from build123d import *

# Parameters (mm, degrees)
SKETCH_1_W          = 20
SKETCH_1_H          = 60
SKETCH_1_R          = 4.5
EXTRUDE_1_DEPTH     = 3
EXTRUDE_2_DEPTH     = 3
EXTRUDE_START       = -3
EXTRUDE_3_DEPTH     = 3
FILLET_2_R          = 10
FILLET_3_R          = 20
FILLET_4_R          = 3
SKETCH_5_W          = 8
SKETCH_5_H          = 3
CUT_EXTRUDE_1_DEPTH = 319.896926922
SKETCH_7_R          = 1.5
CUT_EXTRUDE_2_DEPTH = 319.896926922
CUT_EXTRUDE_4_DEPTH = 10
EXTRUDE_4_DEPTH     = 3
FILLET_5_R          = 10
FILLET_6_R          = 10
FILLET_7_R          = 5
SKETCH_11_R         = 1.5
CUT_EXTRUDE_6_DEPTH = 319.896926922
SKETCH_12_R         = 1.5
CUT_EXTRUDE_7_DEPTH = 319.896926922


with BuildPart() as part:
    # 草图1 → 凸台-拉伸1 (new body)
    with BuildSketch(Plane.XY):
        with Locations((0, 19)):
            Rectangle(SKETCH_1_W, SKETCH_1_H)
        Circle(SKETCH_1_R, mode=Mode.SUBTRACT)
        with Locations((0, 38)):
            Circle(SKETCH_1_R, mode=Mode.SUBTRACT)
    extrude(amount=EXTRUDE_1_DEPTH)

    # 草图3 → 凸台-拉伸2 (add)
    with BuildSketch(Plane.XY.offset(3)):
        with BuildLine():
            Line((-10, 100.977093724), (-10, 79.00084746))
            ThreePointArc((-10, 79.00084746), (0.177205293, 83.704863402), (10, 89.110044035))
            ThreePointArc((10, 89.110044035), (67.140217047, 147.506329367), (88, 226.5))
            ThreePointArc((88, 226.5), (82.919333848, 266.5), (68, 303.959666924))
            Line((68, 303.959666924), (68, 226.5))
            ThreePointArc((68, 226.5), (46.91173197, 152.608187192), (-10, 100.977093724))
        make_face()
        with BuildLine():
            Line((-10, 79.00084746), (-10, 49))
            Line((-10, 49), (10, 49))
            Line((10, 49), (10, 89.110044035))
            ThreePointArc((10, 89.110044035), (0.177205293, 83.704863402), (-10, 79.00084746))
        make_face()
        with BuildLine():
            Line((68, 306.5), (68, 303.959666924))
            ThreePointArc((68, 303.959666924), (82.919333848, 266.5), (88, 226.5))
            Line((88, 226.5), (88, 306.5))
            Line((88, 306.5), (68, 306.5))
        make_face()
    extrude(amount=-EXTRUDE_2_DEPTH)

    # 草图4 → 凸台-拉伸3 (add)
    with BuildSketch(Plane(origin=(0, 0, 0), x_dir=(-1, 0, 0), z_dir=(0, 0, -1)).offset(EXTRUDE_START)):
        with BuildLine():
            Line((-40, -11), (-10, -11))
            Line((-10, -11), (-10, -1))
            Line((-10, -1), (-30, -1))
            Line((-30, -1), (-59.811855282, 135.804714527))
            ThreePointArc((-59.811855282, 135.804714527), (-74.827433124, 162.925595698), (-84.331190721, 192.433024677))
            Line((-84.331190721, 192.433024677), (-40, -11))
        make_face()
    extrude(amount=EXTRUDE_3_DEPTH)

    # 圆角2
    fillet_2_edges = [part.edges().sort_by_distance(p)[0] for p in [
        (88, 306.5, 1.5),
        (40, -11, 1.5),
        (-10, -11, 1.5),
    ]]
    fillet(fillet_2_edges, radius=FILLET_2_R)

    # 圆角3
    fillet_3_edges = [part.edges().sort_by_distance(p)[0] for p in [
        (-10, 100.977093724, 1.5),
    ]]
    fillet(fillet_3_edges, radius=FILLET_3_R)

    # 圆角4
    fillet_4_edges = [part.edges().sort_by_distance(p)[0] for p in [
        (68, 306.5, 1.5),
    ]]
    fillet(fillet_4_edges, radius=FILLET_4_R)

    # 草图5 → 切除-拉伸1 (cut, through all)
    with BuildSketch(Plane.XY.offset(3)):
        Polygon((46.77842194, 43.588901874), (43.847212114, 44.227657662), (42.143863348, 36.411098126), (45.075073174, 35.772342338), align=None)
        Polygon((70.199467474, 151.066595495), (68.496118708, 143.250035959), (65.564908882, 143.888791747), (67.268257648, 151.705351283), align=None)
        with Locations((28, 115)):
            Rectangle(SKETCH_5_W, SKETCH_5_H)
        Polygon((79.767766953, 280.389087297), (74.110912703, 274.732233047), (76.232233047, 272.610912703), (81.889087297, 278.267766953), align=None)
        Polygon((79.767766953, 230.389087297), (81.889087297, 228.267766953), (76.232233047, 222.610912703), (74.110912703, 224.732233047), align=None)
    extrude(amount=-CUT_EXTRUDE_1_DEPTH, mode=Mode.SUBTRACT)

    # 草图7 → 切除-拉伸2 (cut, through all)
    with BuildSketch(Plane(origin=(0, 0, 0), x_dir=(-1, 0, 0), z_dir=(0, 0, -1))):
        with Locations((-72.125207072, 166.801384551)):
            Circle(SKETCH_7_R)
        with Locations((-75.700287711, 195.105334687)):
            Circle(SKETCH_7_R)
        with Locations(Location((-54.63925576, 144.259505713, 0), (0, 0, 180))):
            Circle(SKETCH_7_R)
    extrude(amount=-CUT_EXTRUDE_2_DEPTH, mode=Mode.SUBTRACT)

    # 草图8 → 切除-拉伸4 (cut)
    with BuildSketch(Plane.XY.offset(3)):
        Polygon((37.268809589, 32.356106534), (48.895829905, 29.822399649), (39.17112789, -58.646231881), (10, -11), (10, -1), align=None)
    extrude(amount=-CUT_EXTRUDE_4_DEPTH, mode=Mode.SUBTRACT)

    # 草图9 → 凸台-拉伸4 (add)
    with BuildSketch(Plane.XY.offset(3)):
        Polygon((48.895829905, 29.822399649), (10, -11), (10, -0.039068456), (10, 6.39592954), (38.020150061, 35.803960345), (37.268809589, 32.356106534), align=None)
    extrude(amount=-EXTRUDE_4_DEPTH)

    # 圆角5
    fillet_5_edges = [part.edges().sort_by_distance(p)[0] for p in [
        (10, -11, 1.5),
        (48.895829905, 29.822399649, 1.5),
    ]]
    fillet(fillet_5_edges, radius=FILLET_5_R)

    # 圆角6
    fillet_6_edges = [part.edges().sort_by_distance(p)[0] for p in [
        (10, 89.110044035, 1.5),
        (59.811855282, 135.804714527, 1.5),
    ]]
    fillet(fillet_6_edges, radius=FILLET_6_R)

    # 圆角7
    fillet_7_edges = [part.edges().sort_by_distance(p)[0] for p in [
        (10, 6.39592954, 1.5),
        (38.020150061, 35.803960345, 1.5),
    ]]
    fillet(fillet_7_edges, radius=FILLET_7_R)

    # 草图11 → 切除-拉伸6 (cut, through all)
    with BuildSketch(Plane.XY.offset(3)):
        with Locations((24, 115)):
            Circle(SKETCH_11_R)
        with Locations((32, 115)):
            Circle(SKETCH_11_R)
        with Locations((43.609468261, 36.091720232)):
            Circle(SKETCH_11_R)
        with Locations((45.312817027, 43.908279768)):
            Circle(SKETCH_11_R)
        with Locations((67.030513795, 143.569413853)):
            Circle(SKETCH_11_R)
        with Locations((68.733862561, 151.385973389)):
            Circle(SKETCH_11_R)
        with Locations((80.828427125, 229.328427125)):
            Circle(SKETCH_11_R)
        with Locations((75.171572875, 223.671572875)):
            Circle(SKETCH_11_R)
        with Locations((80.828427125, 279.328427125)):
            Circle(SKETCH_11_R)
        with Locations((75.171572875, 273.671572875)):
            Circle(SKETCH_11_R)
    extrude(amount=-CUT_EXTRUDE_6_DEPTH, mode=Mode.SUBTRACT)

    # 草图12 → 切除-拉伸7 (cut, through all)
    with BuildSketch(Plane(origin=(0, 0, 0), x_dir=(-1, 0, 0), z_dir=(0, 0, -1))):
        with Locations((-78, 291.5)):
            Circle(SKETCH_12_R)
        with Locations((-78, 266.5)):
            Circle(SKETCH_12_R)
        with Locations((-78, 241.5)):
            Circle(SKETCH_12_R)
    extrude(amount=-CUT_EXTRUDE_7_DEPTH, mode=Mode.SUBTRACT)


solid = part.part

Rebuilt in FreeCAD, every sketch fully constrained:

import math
import FreeCAD as App
import Part
import Sketcher
from FreeCAD import Vector
Q = App.Units.Quantity


def edges_at(feature, points):
    """Names of the edges that pass closest to the given points."""
    edges = feature.Shape.Edges
    near = lambda p: min(range(len(edges)), key=lambda i: edges[i].distToShape(Part.Vertex(*p))[0])
    return sorted({f"Edge{near(p) + 1}" for p in points})


def add_polygon(sketch, points):
    """Adds a closed chain of lines whose ends are joined by coincident constraints."""
    first, n = sketch.GeometryCount, len(points)
    for a, b in zip(points, points[1:] + points[:1]):
        sketch.addGeometry(Part.LineSegment(App.Vector(*a, 0), App.Vector(*b, 0)), False)
    for i in range(n):
        sketch.addConstraint(Sketcher.Constraint("Coincident", first + i, 2, first + (i + 1) % n, 1))

doc = App.newDocument("Part")
params = doc.addObject("Spreadsheet::Sheet", "Params")
for row, (alias, value) in enumerate([
    ("sketch1_diameter", "9 mm"),
    ("sketch1_width", "20 mm"),
    ("sketch1_height", "60 mm"),
    ("pad1_length", "3 mm"),
    ("sketch2_radius", "160 mm"),
    ("sketch2_radius2", "140 mm"),
    ("sketch2_height", "80 mm"),
    ("pad2_length", "3 mm"),
    ("sketch3_radius", "160 mm"),
    ("sketch3_width", "30 mm"),
    ("sketch3_width2", "20 mm"),
    ("sketch3_height", "10 mm"),
    ("pad3_length", "3 mm"),
    ("fillet_radius", "10 mm"),
    ("fillet2_radius", "20 mm"),
    ("fillet3_radius", "3 mm"),
    ("sketch4_width", "8 mm"),
    ("sketch4_height", "3 mm"),
    ("sketch4_length", "3 mm"),
    ("sketch4_length2", "8 mm"),
    ("sketch5_diameter", "3 mm"),
    ("sketch6_height", "10 mm"),
    ("pocket3_length", "10 mm"),
    ("pad4_length", "3 mm"),
    ("fillet4_radius", "10 mm"),
    ("fillet5_radius", "10 mm"),
    ("fillet6_radius", "5 mm"),
    ("sketch8_diameter", "3 mm"),
    ("sketch9_diameter", "3 mm"),
], start=1):
    params.set(f"A{row}", alias)
    params.set(f"B{row}", "=" + value)
    params.setAlias(f"B{row}", alias)

body = doc.addObject("PartDesign::Body", "Body")

# Sketch on XY plane
sketch1 = body.newObject("Sketcher::SketchObject", "Sketch")
sketch1.AttachmentSupport = (doc.getObject("XY_Plane"), [""])
sketch1.MapMode = "FlatFace"
add_polygon(sketch1, [(-10, 49), (-10, -11), (10, -11), (10, 49)])  # lines 0-3
sketch1.addGeometry(Part.Circle(Vector(0, 0, 0), Vector(0, 0, 1), 4.5), False)  # 4
sketch1.addGeometry(Part.Circle(Vector(0, 38, 0), Vector(0, 0, 1), 4.5), False)  # 5
sketch1.addConstraint([
    Sketcher.Constraint("Vertical", 0),
    Sketcher.Constraint("Horizontal", 1),
    Sketcher.Constraint("Vertical", 2),
    Sketcher.Constraint("Horizontal", 3),
    Sketcher.Constraint("Coincident", 4, 3, -1, 1),
    Sketcher.Constraint("Equal", 4, 5),
    Sketcher.Constraint("PointOnObject", 5, 3, -2),
    Sketcher.Constraint("Diameter", 4, Q("9 mm")),
    Sketcher.Constraint("DistanceX", 1, 1, 1, 2, Q("20 mm")),
    Sketcher.Constraint("DistanceY", 0, 2, 0, 1, Q("60 mm")),
    Sketcher.Constraint("DistanceY", -1, 1, 5, 3, Q("38 mm")),
    Sketcher.Constraint("DistanceX", 0, 2, -1, 1, Q("10 mm")),
    Sketcher.Constraint("DistanceY", 0, 2, -1, 1, Q("11 mm")),
])
sketch1.setExpression("Constraints[11]", "Params.sketch1_diameter")
sketch1.setExpression("Constraints[12]", "Params.sketch1_width")
sketch1.setExpression("Constraints[13]", "Params.sketch1_height")
pad1 = body.newObject("PartDesign::Pad", "Pad")
pad1.Profile = sketch1
pad1.setExpression("Length", "Params.pad1_length")

# Sketch on XY plane
sketch2 = body.newObject("Sketcher::SketchObject", "Sketch001")
sketch2.AttachmentSupport = (doc.getObject("XY_Plane"), [""])
sketch2.MapMode = "FlatFace"
sketch2.AttachmentOffset = App.Placement(Vector(0, 0, 3), App.Rotation())
sketch2.addGeometry([
    Part.LineSegment(Vector(-10, 100.977094, 0), Vector(-10, 49, 0)),  # 0
    Part.LineSegment(Vector(-10, 49, 0), Vector(10, 49, 0)),  # 1
    Part.LineSegment(Vector(10, 49, 0), Vector(10, 89.110044, 0)),  # 2
    Part.ArcOfCircle(Part.Circle(Vector(-72, 226.5, 0), Vector(0, 0, 1), 160), math.radians(-59.169503), math.radians(0)),  # 3
    Part.LineSegment(Vector(88, 226.5, 0), Vector(88, 306.5, 0)),  # 4
    Part.LineSegment(Vector(88, 306.5, 0), Vector(68, 306.5, 0)),  # 5
    Part.LineSegment(Vector(68, 306.5, 0), Vector(68, 226.5, 0)),  # 6
    Part.ArcOfCircle(Part.Circle(Vector(-72, 226.5, 0), Vector(0, 0, 1), 140), math.radians(-63.713679), math.radians(0)),  # 7
], False)
sketch2.addConstraint([
    Sketcher.Constraint("Coincident", 0, 2, 1, 1),
    Sketcher.Constraint("Coincident", 1, 2, 2, 1),
    Sketcher.Constraint("Coincident", 2, 2, 3, 1),
    Sketcher.Constraint("Tangent", 3, 2, 4, 1),
    Sketcher.Constraint("Coincident", 4, 2, 5, 1),
    Sketcher.Constraint("Coincident", 5, 2, 6, 1),
    Sketcher.Constraint("Tangent", 6, 2, 7, 2),
    Sketcher.Constraint("Coincident", 7, 1, 0, 1),
    Sketcher.Constraint("Vertical", 0),
    Sketcher.Constraint("Horizontal", 1),
    Sketcher.Constraint("Vertical", 2),
    Sketcher.Constraint("Vertical", 4),
    Sketcher.Constraint("Horizontal", 5),
    Sketcher.Constraint("Vertical", 6),
    Sketcher.Constraint("Coincident", 7, 3, 3, 3),
    Sketcher.Constraint("Equal", 1, 5),
    Sketcher.Constraint("Radius", 3, Q("160 mm")),
    Sketcher.Constraint("Radius", 7, Q("140 mm")),
    Sketcher.Constraint("DistanceY", 4, 1, 4, 2, Q("80 mm")),
    Sketcher.Constraint("DistanceX", 3, 3, -1, 1, Q("72 mm")),
    Sketcher.Constraint("DistanceX", 0, 2, -1, 1, Q("10 mm")),
    Sketcher.Constraint("DistanceY", -1, 1, 0, 2, Q("49 mm")),
    Sketcher.Constraint("DistanceY", -1, 1, 3, 3, Q("226.5 mm")),
])
sketch2.setExpression("Constraints[16]", "Params.sketch2_radius")
sketch2.setExpression("Constraints[17]", "Params.sketch2_radius2")
sketch2.setExpression("Constraints[18]", "Params.sketch2_height")
pad2 = body.newObject("PartDesign::Pad", "Pad001")
pad2.Profile = sketch2
pad2.setExpression("Length", "Params.pad2_length")
pad2.Reversed = True

# Sketch on XY plane
sketch3 = body.newObject("Sketcher::SketchObject", "Sketch002")
sketch3.AttachmentSupport = (doc.getObject("XY_Plane"), [""])
sketch3.MapMode = "FlatFace"
sketch3.AttachmentOffset = App.Placement(Vector(0, 0, 3), App.Rotation())
sketch3.addGeometry([
    Part.LineSegment(Vector(40, -11, 0), Vector(10, -11, 0)),  # 0
    Part.LineSegment(Vector(10, -11, 0), Vector(10, -1, 0)),  # 1
    Part.LineSegment(Vector(10, -1, 0), Vector(30, -1, 0)),  # 2
    Part.LineSegment(Vector(30, -1, 0), Vector(59.811855, 135.804715, 0)),  # 3
    Part.ArcOfCircle(Part.Circle(Vector(-72, 226.5, 0), Vector(0, 0, 1), 160), math.radians(-34.530547), math.radians(-12.293444)),  # 4
    Part.LineSegment(Vector(84.331191, 192.433025, 0), Vector(40, -11, 0)),  # 5
], False)
sketch3.addConstraint([
    Sketcher.Constraint("Coincident", 0, 2, 1, 1),
    Sketcher.Constraint("Coincident", 1, 2, 2, 1),
    Sketcher.Constraint("Coincident", 2, 2, 3, 1),
    Sketcher.Constraint("Coincident", 3, 2, 4, 1),
    Sketcher.Constraint("Tangent", 4, 2, 5, 1),
    Sketcher.Constraint("Coincident", 5, 2, 0, 1),
    Sketcher.Constraint("Horizontal", 0),
    Sketcher.Constraint("Vertical", 1),
    Sketcher.Constraint("Horizontal", 2),
    Sketcher.Constraint("Parallel", 3, 5),
    Sketcher.Constraint("Radius", 4, Q("160 mm")),
    Sketcher.Constraint("DistanceX", 0, 2, 0, 1, Q("30 mm")),
    Sketcher.Constraint("DistanceX", 2, 1, 2, 2, Q("20 mm")),
    Sketcher.Constraint("DistanceY", 1, 1, 1, 2, Q("10 mm")),
    Sketcher.Constraint("DistanceX", 4, 3, -1, 1, Q("72 mm")),
    Sketcher.Constraint("DistanceX", -1, 1, 0, 2, Q("10 mm")),
    Sketcher.Constraint("DistanceY", 0, 2, -1, 1, Q("11 mm")),
    Sketcher.Constraint("DistanceY", -1, 1, 4, 3, Q("226.5 mm")),
])
sketch3.setExpression("Constraints[10]", "Params.sketch3_radius")
sketch3.setExpression("Constraints[11]", "Params.sketch3_width")
sketch3.setExpression("Constraints[12]", "Params.sketch3_width2")
sketch3.setExpression("Constraints[13]", "Params.sketch3_height")
pad3 = body.newObject("PartDesign::Pad", "Pad002")
pad3.Profile = sketch3
pad3.setExpression("Length", "Params.pad3_length")
pad3.Reversed = True
doc.recompute()

fillet = body.newObject("PartDesign::Fillet", "Fillet")
fillet.Base = (pad3, edges_at(pad3, [(88, 306.5, 1.5), (40, -11, 1.5), (-10, -11, 1.5)]))
fillet.setExpression("Radius", "Params.fillet_radius")
doc.recompute()

fillet2 = body.newObject("PartDesign::Fillet", "Fillet001")
fillet2.Base = (fillet, edges_at(fillet, [(-10, 100.977, 1.5)]))
fillet2.setExpression("Radius", "Params.fillet2_radius")
doc.recompute()

fillet3 = body.newObject("PartDesign::Fillet", "Fillet002")
fillet3.Base = (fillet2, edges_at(fillet2, [(68, 306.5, 1.5)]))
fillet3.setExpression("Radius", "Params.fillet3_radius")

# Sketch on XY plane
sketch4 = body.newObject("Sketcher::SketchObject", "Sketch003")
sketch4.AttachmentSupport = (doc.getObject("XY_Plane"), [""])
sketch4.MapMode = "FlatFace"
sketch4.AttachmentOffset = App.Placement(Vector(0, 0, 3), App.Rotation())
add_polygon(sketch4, [(46.778422, 43.588902), (43.847212, 44.227658), (42.143863, 36.411098), (45.075073, 35.772342)])  # lines 0-3
add_polygon(sketch4, [(68.496119, 143.250036), (70.199467, 151.066595), (67.268258, 151.705351), (65.564909, 143.888792)])  # lines 4-7
add_polygon(sketch4, [(24, 116.5), (24, 113.5), (32, 113.5), (32, 116.5)])  # lines 8-11
add_polygon(sketch4, [(79.767767, 280.389087), (74.110913, 274.732233), (76.232233, 272.610913), (81.889087, 278.267767)])  # lines 12-15
add_polygon(sketch4, [(81.889087, 228.267767), (79.767767, 230.389087), (74.110913, 224.732233), (76.232233, 222.610913)])  # lines 16-19
sketch4.addConstraint([
    Sketcher.Constraint("Vertical", 8),
    Sketcher.Constraint("Horizontal", 9),
    Sketcher.Constraint("Vertical", 10),
    Sketcher.Constraint("Horizontal", 11),
    Sketcher.Constraint("Perpendicular", 0, 1),
    Sketcher.Constraint("Perpendicular", 1, 2),
    Sketcher.Constraint("Perpendicular", 2, 3),
    Sketcher.Constraint("Parallel", 3, 4),
    Sketcher.Constraint("Perpendicular", 4, 5),
    Sketcher.Constraint("Perpendicular", 5, 6),
    Sketcher.Constraint("Perpendicular", 6, 7),
    Sketcher.Constraint("Perpendicular", 12, 13),
    Sketcher.Constraint("Perpendicular", 13, 14),
    Sketcher.Constraint("Perpendicular", 14, 15),
    Sketcher.Constraint("Parallel", 15, 16),
    Sketcher.Constraint("Perpendicular", 16, 17),
    Sketcher.Constraint("Perpendicular", 17, 18),
    Sketcher.Constraint("Perpendicular", 18, 19),
    Sketcher.Constraint("Vertical", 15, 2, 16, 2),
    Sketcher.Constraint("Vertical", 12, 2, 17, 2),
    Sketcher.Constraint("Vertical", 13, 2, 18, 2),
    Sketcher.Constraint("Equal", 3, 4),
    Sketcher.Constraint("Equal", 2, 5),
    Sketcher.Constraint("Equal", 6, 12),
    Sketcher.Constraint("Equal", 7, 13),
    Sketcher.Constraint("DistanceX", 9, 1, 9, 2, Q("8 mm")),
    Sketcher.Constraint("DistanceY", 8, 2, 8, 1, Q("3 mm")),
    Sketcher.Constraint("Angle", 12, Q("-135 deg")),
    Sketcher.Constraint("Distance", 0, Q("3 mm")),
    Sketcher.Constraint("Distance", 1, Q("8 mm")),
    Sketcher.Constraint("DistanceX", -1, 1, 8, 2, Q("24 mm")),
    Sketcher.Constraint("DistanceY", 16, 2, 15, 2, Q("50 mm")),
    Sketcher.Constraint("DistanceY", -1, 1, 8, 2, Q("113.5 mm")),
    Sketcher.Constraint("DistanceY", -1, 1, 1, 2, Q("36.411098 mm")),
    Sketcher.Constraint("DistanceY", -1, 1, 3, 2, Q("43.588902 mm")),
    Sketcher.Constraint("DistanceX", 4, 2, 15, 2, Q("9.568299 mm")),
    Sketcher.Constraint("DistanceX", -1, 1, 3, 2, Q("46.778422 mm")),
    Sketcher.Constraint("DistanceY", -1, 1, 5, 2, Q("151.705351 mm")),
    Sketcher.Constraint("DistanceX", -1, 1, 6, 2, Q("65.564909 mm")),
    Sketcher.Constraint("DistanceY", 5, 2, 12, 2, Q("123.026882 mm")),
])
sketch4.setExpression("Constraints[45]", "Params.sketch4_width")
sketch4.setExpression("Constraints[46]", "Params.sketch4_height")
sketch4.setExpression("Constraints[48]", "Params.sketch4_length")
sketch4.setExpression("Constraints[49]", "Params.sketch4_length2")
pocket1 = body.newObject("PartDesign::Pocket", "Pocket")
pocket1.Profile = sketch4
pocket1.Type = "ThroughAll"

# Sketch on XY plane
sketch5 = body.newObject("Sketcher::SketchObject", "Sketch004")
sketch5.AttachmentSupport = (doc.getObject("XY_Plane"), [""])
sketch5.MapMode = "FlatFace"
sketch5.addGeometry([
    Part.Circle(Vector(72.125207, 166.801385, 0), Vector(0, 0, 1), 1.5),
    Part.Circle(Vector(75.700288, 195.105335, 0), Vector(0, 0, 1), 1.5),
    Part.Circle(Vector(54.639256, 144.259506, 0), Vector(0, 0, 1), 1.5),
], False)
sketch5.addConstraint([
    Sketcher.Constraint("Equal", 0, 1),
    Sketcher.Constraint("Equal", 1, 2),
    Sketcher.Constraint("Diameter", 0, Q("3 mm")),
    Sketcher.Constraint("DistanceX", 0, 3, 1, 3, Q("3.575081 mm")),
    Sketcher.Constraint("DistanceY", 0, 3, 1, 3, Q("28.30395 mm")),
    Sketcher.Constraint("DistanceX", 2, 3, 0, 3, Q("17.485951 mm")),
    Sketcher.Constraint("DistanceY", 2, 3, 0, 3, Q("22.541879 mm")),
    Sketcher.Constraint("DistanceX", -1, 1, 0, 3, Q("72.125207 mm")),
    Sketcher.Constraint("DistanceY", -1, 1, 0, 3, Q("166.801385 mm")),
])
sketch5.setExpression("Constraints[2]", "Params.sketch5_diameter")
pocket2 = body.newObject("PartDesign::Pocket", "Pocket001")
pocket2.Profile = sketch5
pocket2.Type = "ThroughAll"
pocket2.Reversed = True

# Sketch on XY plane
sketch6 = body.newObject("Sketcher::SketchObject", "Sketch005")
sketch6.AttachmentSupport = (doc.getObject("XY_Plane"), [""])
sketch6.MapMode = "FlatFace"
sketch6.AttachmentOffset = App.Placement(Vector(0, 0, 3), App.Rotation())
add_polygon(sketch6, [(48.89583, 29.8224), (37.26881, 32.356107), (10, -1), (10, -11), (39.171128, -58.646232)])  # lines 0-4
sketch6.addConstraint([
    Sketcher.Constraint("Vertical", 2),
    Sketcher.Constraint("DistanceY", 2, 2, 2, 1, Q("10 mm")),
    Sketcher.Constraint("DistanceX", -1, 1, 1, 2, Q("10 mm")),
    Sketcher.Constraint("DistanceY", 1, 2, -1, 1, Q("1 mm")),
    Sketcher.Constraint("DistanceY", -1, 1, 4, 2, Q("29.8224 mm")),
    Sketcher.Constraint("Distance", 3, Q("55.866968 mm")),
    Sketcher.Constraint("Distance", 4, Q("89.001509 mm")),
    Sketcher.Constraint("DistanceX", -1, 1, 0, 2, Q("37.26881 mm")),
    Sketcher.Constraint("DistanceY", 3, 2, -1, 1, Q("58.646232 mm")),
    Sketcher.Constraint("DistanceY", 3, 2, 0, 2, Q("91.002338 mm")),
])
sketch6.setExpression("Constraints[6]", "Params.sketch6_height")
pocket3 = body.newObject("PartDesign::Pocket", "Pocket002")
pocket3.Profile = sketch6
pocket3.setExpression("Length", "Params.pocket3_length")

# Sketch on XY plane
sketch7 = body.newObject("Sketcher::SketchObject", "Sketch006")
sketch7.AttachmentSupport = (doc.getObject("XY_Plane"), [""])
sketch7.MapMode = "FlatFace"
sketch7.AttachmentOffset = App.Placement(Vector(0, 0, 3), App.Rotation())
add_polygon(sketch7, [(10, -11), (48.89583, 29.8224), (37.26881, 32.356107), (38.02015, 35.80396), (10, 6.39593)])  # lines 0-4
sketch7.addConstraint([
    Sketcher.Constraint("Vertical", 4),
    Sketcher.Constraint("Perpendicular", 1, 2),
    Sketcher.Constraint("Parallel", 0, 3),
    Sketcher.Constraint("DistanceX", -1, 1, 3, 2, Q("10 mm")),
    Sketcher.Constraint("DistanceY", 4, 2, -1, 1, Q("11 mm")),
    Sketcher.Constraint("DistanceY", 4, 2, 4, 1, Q("17.39593 mm")),
    Sketcher.Constraint("DistanceY", -1, 1, 0, 2, Q("29.8224 mm")),
    Sketcher.Constraint("Distance", 0, Q("56.38576 mm")),
    Sketcher.Constraint("Distance", 2, Q("3.528769 mm")),
    Sketcher.Constraint("DistanceX", -1, 1, 1, 2, Q("37.26881 mm")),
])
pad4 = body.newObject("PartDesign::Pad", "Pad003")
pad4.Profile = sketch7
pad4.setExpression("Length", "Params.pad4_length")
pad4.Reversed = True
doc.recompute()

fillet4 = body.newObject("PartDesign::Fillet", "Fillet003")
fillet4.Base = (pad4, edges_at(pad4, [(10, -11, 1.5), (48.896, 29.822, 1.5)]))
fillet4.setExpression("Radius", "Params.fillet4_radius")
doc.recompute()

fillet5 = body.newObject("PartDesign::Fillet", "Fillet004")
fillet5.Base = (fillet4, edges_at(fillet4, [(10, 89.11, 1.5), (59.812, 135.805, 1.5)]))
fillet5.setExpression("Radius", "Params.fillet5_radius")
doc.recompute()

fillet6 = body.newObject("PartDesign::Fillet", "Fillet005")
fillet6.Base = (fillet5, edges_at(fillet5, [(10, 6.396, 1.5), (38.02, 35.804, 1.5)]))
fillet6.setExpression("Radius", "Params.fillet6_radius")

# Sketch on XY plane
sketch8 = body.newObject("Sketcher::SketchObject", "Sketch007")
sketch8.AttachmentSupport = (doc.getObject("XY_Plane"), [""])
sketch8.MapMode = "FlatFace"
sketch8.AttachmentOffset = App.Placement(Vector(0, 0, 3), App.Rotation())
sketch8.addGeometry([
    Part.Circle(Vector(24, 115, 0), Vector(0, 0, 1), 1.5),  # 0
    Part.Circle(Vector(32, 115, 0), Vector(0, 0, 1), 1.5),  # 1
    Part.Circle(Vector(43.609468, 36.09172, 0), Vector(0, 0, 1), 1.5),  # 2
    Part.Circle(Vector(45.312817, 43.90828, 0), Vector(0, 0, 1), 1.5),  # 3
    Part.Circle(Vector(67.030514, 143.569414, 0), Vector(0, 0, 1), 1.5),  # 4
    Part.Circle(Vector(68.733863, 151.385973, 0), Vector(0, 0, 1), 1.5),  # 5
    Part.Circle(Vector(80.828427, 229.328427, 0), Vector(0, 0, 1), 1.5),  # 6
    Part.Circle(Vector(75.171573, 223.671573, 0), Vector(0, 0, 1), 1.5),  # 7
    Part.Circle(Vector(80.828427, 279.328427, 0), Vector(0, 0, 1), 1.5),  # 8
    Part.Circle(Vector(75.171573, 273.671573, 0), Vector(0, 0, 1), 1.5),  # 9
], False)
sketch8.addConstraint([
    Sketcher.Constraint("Equal", 0, 1),
    Sketcher.Constraint("Equal", 1, 2),
    Sketcher.Constraint("Equal", 2, 3),
    Sketcher.Constraint("Equal", 3, 4),
    Sketcher.Constraint("Equal", 4, 5),
    Sketcher.Constraint("Equal", 5, 6),
    Sketcher.Constraint("Equal", 6, 7),
    Sketcher.Constraint("Equal", 7, 8),
    Sketcher.Constraint("Equal", 8, 9),
    Sketcher.Constraint("Horizontal", 0, 3, 1, 3),
    Sketcher.Constraint("Vertical", 6, 3, 8, 3),
    Sketcher.Constraint("Vertical", 7, 3, 9, 3),
    Sketcher.Constraint("Diameter", 0, Q("3 mm")),
    Sketcher.Constraint("DistanceX", -1, 1, 0, 3, Q("24 mm")),
    Sketcher.Constraint("DistanceY", -1, 1, 0, 3, Q("115 mm")),
    Sketcher.Constraint("DistanceX", -1, 1, 1, 3, Q("32 mm")),
    Sketcher.Constraint("DistanceY", 6, 3, 8, 3, Q("50 mm")),
    Sketcher.Constraint("DistanceY", 7, 3, 9, 3, Q("50 mm")),
    Sketcher.Constraint("DistanceY", 5, 3, 7, 3, Q("72.285599 mm")),
    Sketcher.Constraint("DistanceX", -1, 1, 2, 3, Q("43.609468 mm")),
    Sketcher.Constraint("DistanceY", -1, 1, 2, 3, Q("36.09172 mm")),
    Sketcher.Constraint("DistanceY", -1, 1, 3, 3, Q("43.90828 mm")),
    Sketcher.Constraint("DistanceX", 2, 3, 3, 3, Q("1.703349 mm")),
    Sketcher.Constraint("DistanceX", 4, 3, 5, 3, Q("1.703349 mm")),
    Sketcher.Constraint("DistanceY", 4, 3, 5, 3, Q("7.81656 mm")),
    Sketcher.Constraint("DistanceX", 3, 3, 6, 3, Q("35.51561 mm")),
    Sketcher.Constraint("DistanceX", 5, 3, 7, 3, Q("6.43771 mm")),
    Sketcher.Constraint("DistanceX", -1, 1, 4, 3, Q("67.030514 mm")),
    Sketcher.Constraint("DistanceY", -1, 1, 4, 3, Q("143.569414 mm")),
    Sketcher.Constraint("DistanceY", -1, 1, 6, 3, Q("229.328427 mm")),
])
sketch8.setExpression("Constraints[12]", "Params.sketch8_diameter")
pocket4 = body.newObject("PartDesign::Pocket", "Pocket003")
pocket4.Profile = sketch8
pocket4.Type = "ThroughAll"

# Sketch on XY plane
sketch9 = body.newObject("Sketcher::SketchObject", "Sketch008")
sketch9.AttachmentSupport = (doc.getObject("XY_Plane"), [""])
sketch9.MapMode = "FlatFace"
sketch9.addGeometry([
    Part.Circle(Vector(78, 291.5, 0), Vector(0, 0, 1), 1.5),
    Part.Circle(Vector(78, 266.5, 0), Vector(0, 0, 1), 1.5),
    Part.Circle(Vector(78, 241.5, 0), Vector(0, 0, 1), 1.5),
], False)
sketch9.addConstraint([
    Sketcher.Constraint("Equal", 0, 1),
    Sketcher.Constraint("Equal", 1, 2),
    Sketcher.Constraint("Vertical", 0, 3, 1, 3),
    Sketcher.Constraint("Vertical", 1, 3, 2, 3),
    Sketcher.Constraint("Diameter", 0, Q("3 mm")),
    Sketcher.Constraint("DistanceX", -1, 1, 0, 3, Q("78 mm")),
    Sketcher.Constraint("DistanceY", 1, 3, 0, 3, Q("25 mm")),
    Sketcher.Constraint("DistanceY", 2, 3, 1, 3, Q("25 mm")),
    Sketcher.Constraint("DistanceY", -1, 1, 0, 3, Q("291.5 mm")),
])
sketch9.setExpression("Constraints[4]", "Params.sketch9_diameter")
pocket5 = body.newObject("PartDesign::Pocket", "Pocket004")
pocket5.Profile = sketch9
pocket5.Type = "ThroughAll"
pocket5.Reversed = True

doc.recompute()
